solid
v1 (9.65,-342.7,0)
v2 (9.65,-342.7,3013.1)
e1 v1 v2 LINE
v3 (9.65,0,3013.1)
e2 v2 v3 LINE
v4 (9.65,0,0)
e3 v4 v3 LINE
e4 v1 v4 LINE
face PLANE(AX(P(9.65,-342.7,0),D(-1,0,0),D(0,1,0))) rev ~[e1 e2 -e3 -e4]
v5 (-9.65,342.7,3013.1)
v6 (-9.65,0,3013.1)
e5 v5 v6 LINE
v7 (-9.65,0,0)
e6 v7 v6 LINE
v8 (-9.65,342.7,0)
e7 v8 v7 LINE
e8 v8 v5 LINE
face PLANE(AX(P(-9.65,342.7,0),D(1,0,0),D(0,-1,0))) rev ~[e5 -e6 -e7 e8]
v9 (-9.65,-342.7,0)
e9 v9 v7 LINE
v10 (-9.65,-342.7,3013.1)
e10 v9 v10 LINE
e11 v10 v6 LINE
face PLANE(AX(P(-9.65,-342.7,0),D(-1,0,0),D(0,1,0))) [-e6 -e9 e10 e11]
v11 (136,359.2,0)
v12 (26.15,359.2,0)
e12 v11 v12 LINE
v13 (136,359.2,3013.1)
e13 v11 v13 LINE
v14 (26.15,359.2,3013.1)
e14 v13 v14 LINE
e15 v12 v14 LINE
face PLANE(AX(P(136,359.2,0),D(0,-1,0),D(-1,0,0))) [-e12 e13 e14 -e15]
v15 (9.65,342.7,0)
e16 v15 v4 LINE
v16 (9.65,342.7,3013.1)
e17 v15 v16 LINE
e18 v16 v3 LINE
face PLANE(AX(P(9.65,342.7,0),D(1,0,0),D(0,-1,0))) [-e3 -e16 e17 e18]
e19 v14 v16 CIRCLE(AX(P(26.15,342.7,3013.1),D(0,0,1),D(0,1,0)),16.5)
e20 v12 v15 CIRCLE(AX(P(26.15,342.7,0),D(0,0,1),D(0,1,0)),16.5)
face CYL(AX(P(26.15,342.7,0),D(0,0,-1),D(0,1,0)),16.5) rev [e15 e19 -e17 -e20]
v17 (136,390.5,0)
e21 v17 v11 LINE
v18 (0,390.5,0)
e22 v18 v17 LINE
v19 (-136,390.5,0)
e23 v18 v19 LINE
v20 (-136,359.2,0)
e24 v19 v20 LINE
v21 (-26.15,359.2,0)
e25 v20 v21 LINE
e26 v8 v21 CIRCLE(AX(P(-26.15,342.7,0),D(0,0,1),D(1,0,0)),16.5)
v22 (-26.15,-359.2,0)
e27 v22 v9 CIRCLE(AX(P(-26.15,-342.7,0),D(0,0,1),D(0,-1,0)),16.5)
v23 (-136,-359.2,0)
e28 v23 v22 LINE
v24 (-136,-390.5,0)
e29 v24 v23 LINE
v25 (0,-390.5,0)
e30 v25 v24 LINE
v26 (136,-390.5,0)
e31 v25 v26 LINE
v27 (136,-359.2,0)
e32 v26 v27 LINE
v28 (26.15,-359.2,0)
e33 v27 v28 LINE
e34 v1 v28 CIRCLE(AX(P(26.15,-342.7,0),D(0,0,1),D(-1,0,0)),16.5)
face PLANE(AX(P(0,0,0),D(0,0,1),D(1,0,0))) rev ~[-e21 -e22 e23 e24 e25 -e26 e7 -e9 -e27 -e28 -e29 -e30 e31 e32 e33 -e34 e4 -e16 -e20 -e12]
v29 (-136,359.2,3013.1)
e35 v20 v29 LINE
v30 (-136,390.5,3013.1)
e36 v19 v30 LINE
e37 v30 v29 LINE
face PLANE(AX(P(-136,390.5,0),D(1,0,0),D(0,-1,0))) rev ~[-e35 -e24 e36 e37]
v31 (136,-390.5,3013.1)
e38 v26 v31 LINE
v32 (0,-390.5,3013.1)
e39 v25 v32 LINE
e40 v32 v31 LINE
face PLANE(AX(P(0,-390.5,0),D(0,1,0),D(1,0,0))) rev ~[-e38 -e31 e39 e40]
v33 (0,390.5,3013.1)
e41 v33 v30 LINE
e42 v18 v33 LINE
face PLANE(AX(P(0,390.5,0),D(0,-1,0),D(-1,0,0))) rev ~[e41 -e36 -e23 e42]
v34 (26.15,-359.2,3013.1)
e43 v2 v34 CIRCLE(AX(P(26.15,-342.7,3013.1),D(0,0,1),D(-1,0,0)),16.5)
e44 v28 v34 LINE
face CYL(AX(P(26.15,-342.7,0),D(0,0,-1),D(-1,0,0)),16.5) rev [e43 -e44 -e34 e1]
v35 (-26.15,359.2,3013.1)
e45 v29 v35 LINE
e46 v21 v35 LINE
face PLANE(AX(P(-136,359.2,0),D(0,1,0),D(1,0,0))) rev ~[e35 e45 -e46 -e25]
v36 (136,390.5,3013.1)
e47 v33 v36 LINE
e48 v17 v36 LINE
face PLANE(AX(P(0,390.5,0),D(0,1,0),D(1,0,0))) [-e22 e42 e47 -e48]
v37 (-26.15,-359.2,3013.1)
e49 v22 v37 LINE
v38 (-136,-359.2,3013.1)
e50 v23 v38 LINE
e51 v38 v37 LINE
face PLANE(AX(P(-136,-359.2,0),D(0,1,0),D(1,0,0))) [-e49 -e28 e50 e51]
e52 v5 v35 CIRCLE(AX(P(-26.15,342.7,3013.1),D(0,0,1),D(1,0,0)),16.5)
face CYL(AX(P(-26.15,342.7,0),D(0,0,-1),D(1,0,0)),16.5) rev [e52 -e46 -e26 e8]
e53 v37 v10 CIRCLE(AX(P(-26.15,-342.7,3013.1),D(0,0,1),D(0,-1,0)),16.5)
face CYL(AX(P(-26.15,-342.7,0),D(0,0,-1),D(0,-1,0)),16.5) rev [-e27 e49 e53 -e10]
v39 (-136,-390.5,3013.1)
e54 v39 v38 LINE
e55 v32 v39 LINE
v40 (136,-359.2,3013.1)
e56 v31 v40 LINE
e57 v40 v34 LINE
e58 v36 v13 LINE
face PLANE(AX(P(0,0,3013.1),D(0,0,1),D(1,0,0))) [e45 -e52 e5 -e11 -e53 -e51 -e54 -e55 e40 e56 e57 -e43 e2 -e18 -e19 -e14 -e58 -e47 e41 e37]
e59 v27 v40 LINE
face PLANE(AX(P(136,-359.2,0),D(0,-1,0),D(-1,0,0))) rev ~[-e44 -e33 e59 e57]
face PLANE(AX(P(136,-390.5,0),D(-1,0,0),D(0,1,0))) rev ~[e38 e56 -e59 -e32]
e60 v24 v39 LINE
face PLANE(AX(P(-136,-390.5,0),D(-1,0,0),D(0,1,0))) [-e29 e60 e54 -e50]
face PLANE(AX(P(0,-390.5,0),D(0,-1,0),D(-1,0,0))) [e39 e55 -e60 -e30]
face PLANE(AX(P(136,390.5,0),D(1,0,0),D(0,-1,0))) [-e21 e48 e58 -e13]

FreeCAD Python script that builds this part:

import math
import FreeCAD as App
import Part
import Sketcher
from FreeCAD import Vector
Q = App.Units.Quantity

doc = App.newDocument("Part")
body = doc.addObject("PartDesign::Body", "Body")

# Sketch on XY plane
sketch1 = body.newObject("Sketcher::SketchObject", "Sketch")
sketch1.AttachmentSupport = (doc.getObject("XY_Plane"), [""])
sketch1.MapMode = "FlatFace"
sketch1.addGeometry([
    Part.LineSegment(Vector(-136, -359, 0), Vector(-136, -390, 0)),  # 0
    Part.LineSegment(Vector(-136, -390, 0), Vector(136, -390, 0)),  # 1
    Part.LineSegment(Vector(136, -390, 0), Vector(136, -359, 0)),  # 2
    Part.LineSegment(Vector(136, -359, 0), Vector(26, -359, 0)),  # 3
    Part.ArcOfCircle(Part.Circle(Vector(26, -343, 0), Vector(0, 0, 1), 16), math.radians(180), math.radians(270)),  # 4
    Part.LineSegment(Vector(10, -343, 0), Vector(10, 343, 0)),  # 5
    Part.ArcOfCircle(Part.Circle(Vector(26, 343, 0), Vector(0, 0, 1), 16), math.radians(90), math.radians(180)),  # 6
    Part.LineSegment(Vector(26, 359, 0), Vector(136, 359, 0)),  # 7
    Part.LineSegment(Vector(136, 359, 0), Vector(136, 390, 0)),  # 8
    Part.LineSegment(Vector(136, 390, 0), Vector(-136, 390, 0)),  # 9
    Part.LineSegment(Vector(-136, 390, 0), Vector(-136, 359, 0)),  # 10
    Part.LineSegment(Vector(-136, 359, 0), Vector(-26, 359, 0)),  # 11
    Part.ArcOfCircle(Part.Circle(Vector(-26, 343, 0), Vector(0, 0, 1), 16), math.radians(0), math.radians(90)),  # 12
    Part.LineSegment(Vector(-10, 343, 0), Vector(-10, -343, 0)),  # 13
    Part.ArcOfCircle(Part.Circle(Vector(-26, -343, 0), Vector(0, 0, 1), 16), math.radians(-90), math.radians(0)),  # 14
    Part.LineSegment(Vector(-26, -359, 0), Vector(-136, -359, 0)),  # 15
], False)
sketch1.addConstraint([
    Sketcher.Constraint("Coincident", 0, 2, 1, 1),
    Sketcher.Constraint("Coincident", 1, 2, 2, 1),
    Sketcher.Constraint("Coincident", 2, 2, 3, 1),
    Sketcher.Constraint("Tangent", 3, 2, 4, 2),
    Sketcher.Constraint("Tangent", 4, 1, 5, 1),
    Sketcher.Constraint("Tangent", 5, 2, 6, 2),
    Sketcher.Constraint("Tangent", 6, 1, 7, 1),
    Sketcher.Constraint("Coincident", 7, 2, 8, 1),
    Sketcher.Constraint("Coincident", 8, 2, 9, 1),
    Sketcher.Constraint("Coincident", 9, 2, 10, 1),
    Sketcher.Constraint("Coincident", 10, 2, 11, 1),
    Sketcher.Constraint("Tangent", 11, 2, 12, 2),
    Sketcher.Constraint("Tangent", 12, 1, 13, 1),
    Sketcher.Constraint("Tangent", 13, 2, 14, 2),
    Sketcher.Constraint("Tangent", 14, 1, 15, 1),
    Sketcher.Constraint("Coincident", 15, 2, 0, 1),
    Sketcher.Constraint("Vertical", 0),
    Sketcher.Constraint("Horizontal", 1),
    Sketcher.Constraint("Vertical", 2),
    Sketcher.Constraint("Horizontal", 3),
    Sketcher.Constraint("Vertical", 5),
    Sketcher.Constraint("Horizontal", 7),
    Sketcher.Constraint("Vertical", 8),
    Sketcher.Constraint("Horizontal", 9),
    Sketcher.Constraint("Vertical", 10),
    Sketcher.Constraint("Horizontal", 11),
    Sketcher.Constraint("Vertical", 13),
    Sketcher.Constraint("Horizontal", 15),
    Sketcher.Constraint("Equal", 4, 6),
    Sketcher.Constraint("Equal", 6, 12),
    Sketcher.Constraint("Equal", 12, 14),
    Sketcher.Constraint("Symmetric", 4, 3, 12, 3, -1, 1),
    Sketcher.Constraint("Symmetric", 0, 2, 8, 2, -1, 1),
    Sketcher.Constraint("Symmetric", 7, 2, 10, 2, -2),
    Sketcher.Constraint("Symmetric", 2, 2, 15, 2, -2),
    Sketcher.Constraint("Radius", 4, Q("16.5 mm")),
    Sketcher.Constraint("DistanceY", 0, 2, 0, 1, Q("31.3 mm")),
    Sketcher.Constraint("DistanceX", 0, 2, -1, 1, Q("136 mm")),
    Sketcher.Constraint("DistanceY", 0, 2, -1, 1, Q("390.5 mm")),
    Sketcher.Constraint("DistanceX", -1, 1, 4, 1, Q("9.65 mm")),
])
pad1 = body.newObject("PartDesign::Pad", "Pad")
pad1.Profile = sketch1
pad1.Length = 3013.1

doc.recompute()
